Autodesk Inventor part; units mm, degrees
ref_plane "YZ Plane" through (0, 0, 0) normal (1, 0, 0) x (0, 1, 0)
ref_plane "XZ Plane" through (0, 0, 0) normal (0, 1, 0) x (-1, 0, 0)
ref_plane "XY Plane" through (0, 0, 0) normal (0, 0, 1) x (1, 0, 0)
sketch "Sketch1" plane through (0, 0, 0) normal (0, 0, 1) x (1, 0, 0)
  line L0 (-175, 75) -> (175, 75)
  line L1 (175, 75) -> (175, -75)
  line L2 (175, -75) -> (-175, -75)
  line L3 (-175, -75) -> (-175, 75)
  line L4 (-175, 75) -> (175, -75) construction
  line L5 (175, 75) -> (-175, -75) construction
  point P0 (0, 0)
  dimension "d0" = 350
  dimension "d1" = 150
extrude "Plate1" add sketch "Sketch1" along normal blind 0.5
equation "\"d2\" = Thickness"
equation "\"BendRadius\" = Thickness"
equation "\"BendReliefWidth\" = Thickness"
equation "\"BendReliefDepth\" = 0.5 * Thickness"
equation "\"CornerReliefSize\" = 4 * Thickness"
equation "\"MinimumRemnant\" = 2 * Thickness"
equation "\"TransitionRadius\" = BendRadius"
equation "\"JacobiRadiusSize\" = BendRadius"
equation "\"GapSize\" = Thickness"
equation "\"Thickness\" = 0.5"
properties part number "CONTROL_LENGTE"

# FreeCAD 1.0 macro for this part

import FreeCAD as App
import Part
import Sketcher

V = App.Vector

doc = App.newDocument("Part")
body = doc.addObject("PartDesign::Body", "Body")

sketch1 = body.newObject("Sketcher::SketchObject", "Sketch")
sketch1.AttachmentSupport = (doc.getObject("XY_Plane"), [""])
sketch1.MapMode = "FlatFace"
sketch1.addGeometry(Part.LineSegment(V(175, 75, 0), V(-175, 75, 0)), False)
sketch1.addGeometry(Part.LineSegment(V(-175, 75, 0), V(-175, -75, 0)), False)
sketch1.addGeometry(Part.LineSegment(V(-175, -75, 0), V(175, -75, 0)), False)
sketch1.addGeometry(Part.LineSegment(V(175, -75, 0), V(175, 75, 0)), False)
sketch1.addConstraint(Sketcher.Constraint("Coincident", 0, 2, 1, 1))
sketch1.addConstraint(Sketcher.Constraint("Coincident", 1, 2, 2, 1))
sketch1.addConstraint(Sketcher.Constraint("Coincident", 2, 2, 3, 1))
sketch1.addConstraint(Sketcher.Constraint("Coincident", 3, 2, 0, 1))
sketch1.addConstraint(Sketcher.Constraint("Horizontal", 0))
sketch1.addConstraint(Sketcher.Constraint("Vertical", 1))
sketch1.addConstraint(Sketcher.Constraint("Horizontal", 2))
sketch1.addConstraint(Sketcher.Constraint("Vertical", 3))
sketch1.addConstraint(Sketcher.Constraint("Symmetric", 0, 2, 2, 2, -1, 1))
sketch1.addConstraint(Sketcher.Constraint("DistanceX", 0, 2, 0, 1, 350.0))
sketch1.addConstraint(Sketcher.Constraint("DistanceY", 1, 2, 1, 1, 150.0))
pad1 = body.newObject("PartDesign::Pad", "Pad")
pad1.Profile = sketch1
pad1.Length = 0.5

doc.recompute()
